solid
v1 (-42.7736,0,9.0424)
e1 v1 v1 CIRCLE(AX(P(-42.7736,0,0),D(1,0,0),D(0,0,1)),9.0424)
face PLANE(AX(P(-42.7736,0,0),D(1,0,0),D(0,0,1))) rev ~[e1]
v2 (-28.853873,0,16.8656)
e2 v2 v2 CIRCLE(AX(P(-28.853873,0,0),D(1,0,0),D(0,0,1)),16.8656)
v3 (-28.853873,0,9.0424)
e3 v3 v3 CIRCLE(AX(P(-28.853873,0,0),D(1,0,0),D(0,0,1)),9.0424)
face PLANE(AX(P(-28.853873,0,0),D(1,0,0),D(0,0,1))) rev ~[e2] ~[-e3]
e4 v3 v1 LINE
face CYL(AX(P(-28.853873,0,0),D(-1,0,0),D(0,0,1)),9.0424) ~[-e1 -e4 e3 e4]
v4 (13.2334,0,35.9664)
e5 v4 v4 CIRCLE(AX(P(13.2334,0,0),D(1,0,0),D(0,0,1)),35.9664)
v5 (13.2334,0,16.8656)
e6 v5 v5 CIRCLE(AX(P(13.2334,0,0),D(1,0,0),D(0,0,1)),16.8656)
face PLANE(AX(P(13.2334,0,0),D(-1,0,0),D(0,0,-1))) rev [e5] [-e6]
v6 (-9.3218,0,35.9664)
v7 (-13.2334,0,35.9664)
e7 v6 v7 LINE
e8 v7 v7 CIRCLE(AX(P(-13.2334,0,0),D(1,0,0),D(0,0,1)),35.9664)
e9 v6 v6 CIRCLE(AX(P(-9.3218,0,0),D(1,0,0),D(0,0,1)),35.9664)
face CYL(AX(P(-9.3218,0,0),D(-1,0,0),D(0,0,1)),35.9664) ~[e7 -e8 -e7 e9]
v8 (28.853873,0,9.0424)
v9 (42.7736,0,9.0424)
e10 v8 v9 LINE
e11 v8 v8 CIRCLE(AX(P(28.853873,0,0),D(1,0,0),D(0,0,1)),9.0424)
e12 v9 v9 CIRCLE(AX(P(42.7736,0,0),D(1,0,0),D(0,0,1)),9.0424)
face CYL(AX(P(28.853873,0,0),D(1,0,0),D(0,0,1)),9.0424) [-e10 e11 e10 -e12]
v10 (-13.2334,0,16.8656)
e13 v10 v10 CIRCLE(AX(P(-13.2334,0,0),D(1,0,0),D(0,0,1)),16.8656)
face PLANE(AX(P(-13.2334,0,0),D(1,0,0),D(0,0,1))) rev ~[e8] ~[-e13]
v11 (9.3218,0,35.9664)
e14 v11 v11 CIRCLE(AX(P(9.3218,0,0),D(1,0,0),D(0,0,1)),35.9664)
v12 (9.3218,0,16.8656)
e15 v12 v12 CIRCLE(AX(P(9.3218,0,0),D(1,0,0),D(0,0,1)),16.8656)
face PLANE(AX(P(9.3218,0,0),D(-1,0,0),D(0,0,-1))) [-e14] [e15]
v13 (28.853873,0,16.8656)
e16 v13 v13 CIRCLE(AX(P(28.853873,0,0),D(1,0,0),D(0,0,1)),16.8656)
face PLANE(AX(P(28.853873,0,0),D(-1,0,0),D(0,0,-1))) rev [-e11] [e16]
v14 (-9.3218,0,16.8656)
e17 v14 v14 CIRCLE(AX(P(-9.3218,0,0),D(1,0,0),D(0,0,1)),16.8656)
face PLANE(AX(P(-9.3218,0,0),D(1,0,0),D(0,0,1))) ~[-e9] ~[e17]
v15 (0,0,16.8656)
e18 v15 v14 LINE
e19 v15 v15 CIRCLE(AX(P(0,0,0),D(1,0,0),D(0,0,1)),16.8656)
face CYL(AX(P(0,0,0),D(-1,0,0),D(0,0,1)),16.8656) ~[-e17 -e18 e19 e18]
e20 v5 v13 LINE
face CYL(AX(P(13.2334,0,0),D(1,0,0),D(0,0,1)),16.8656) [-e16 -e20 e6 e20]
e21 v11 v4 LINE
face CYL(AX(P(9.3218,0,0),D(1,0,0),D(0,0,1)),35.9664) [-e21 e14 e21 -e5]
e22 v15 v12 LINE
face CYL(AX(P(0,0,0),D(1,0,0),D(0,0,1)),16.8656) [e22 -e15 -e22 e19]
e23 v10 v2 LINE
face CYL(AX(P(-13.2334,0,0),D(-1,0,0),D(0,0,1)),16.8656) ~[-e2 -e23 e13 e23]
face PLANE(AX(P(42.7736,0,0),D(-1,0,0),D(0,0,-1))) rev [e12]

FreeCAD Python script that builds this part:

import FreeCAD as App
import Part
import Sketcher

V = App.Vector
Q = App.Units.Quantity

doc = App.newDocument("Part")
body = doc.addObject("PartDesign::Body", "Body")

sketch1 = body.newObject("Sketcher::SketchObject", "Sketch")
sketch1.AttachmentSupport = (doc.getObject("XZ_Plane"), [""])
sketch1.MapMode = "FlatFace"
sketch1.addGeometry(Part.LineSegment(V(-9.3, 36, 0), V(-13.2, 36, 0)), False)
sketch1.addGeometry(Part.LineSegment(V(-13.2, 36, 0), V(-13.2, 16.9, 0)), False)
sketch1.addGeometry(Part.LineSegment(V(-13.2, 16.9, 0), V(-28.9, 16.9, 0)), False)
sketch1.addGeometry(Part.LineSegment(V(-28.9, 16.9, 0), V(-28.9, 9, 0)), False)
sketch1.addGeometry(Part.LineSegment(V(-28.9, 9, 0), V(-42.8, 9, 0)), False)
sketch1.addGeometry(Part.LineSegment(V(-42.8, 9, 0), V(-42.8, 0, 0)), False)
sketch1.addGeometry(Part.LineSegment(V(-42.8, 0, 0), V(0, 0, 0)), False)
sketch1.addGeometry(Part.LineSegment(V(0, 0, 0), V(0, 16.9, 0)), False)
sketch1.addGeometry(Part.LineSegment(V(0, 16.9, 0), V(-9.3, 16.9, 0)), False)
sketch1.addGeometry(Part.LineSegment(V(-9.3, 16.9, 0), V(-9.3, 36, 0)), False)
sketch1.addConstraint(Sketcher.Constraint("Coincident", 0, 2, 1, 1))
sketch1.addConstraint(Sketcher.Constraint("Coincident", 1, 2, 2, 1))
sketch1.addConstraint(Sketcher.Constraint("Coincident", 2, 2, 3, 1))
sketch1.addConstraint(Sketcher.Constraint("Coincident", 3, 2, 4, 1))
sketch1.addConstraint(Sketcher.Constraint("Coincident", 4, 2, 5, 1))
sketch1.addConstraint(Sketcher.Constraint("Coincident", 5, 2, 6, 1))
sketch1.addConstraint(Sketcher.Constraint("Coincident", 6, 2, 7, 1))
sketch1.addConstraint(Sketcher.Constraint("Coincident", 7, 2, 8, 1))
sketch1.addConstraint(Sketcher.Constraint("Coincident", 8, 2, 9, 1))
sketch1.addConstraint(Sketcher.Constraint("Coincident", 9, 2, 0, 1))
sketch1.addConstraint(Sketcher.Constraint("Horizontal", 0))
sketch1.addConstraint(Sketcher.Constraint("Vertical", 1))
sketch1.addConstraint(Sketcher.Constraint("Horizontal", 2))
sketch1.addConstraint(Sketcher.Constraint("Vertical", 3))
sketch1.addConstraint(Sketcher.Constraint("Horizontal", 4))
sketch1.addConstraint(Sketcher.Constraint("Vertical", 5))
sketch1.addConstraint(Sketcher.Constraint("Horizontal", 6))
sketch1.addConstraint(Sketcher.Constraint("Vertical", 7))
sketch1.addConstraint(Sketcher.Constraint("Horizontal", 8))
sketch1.addConstraint(Sketcher.Constraint("Vertical", 9))
sketch1.addConstraint(Sketcher.Constraint("Coincident", 6, 2, -1, 1))
sketch1.addConstraint(Sketcher.Constraint("Horizontal", 2, 2, 7, 2))
sketch1.addConstraint(Sketcher.Constraint("DistanceX", 0, 2, 0, 1, Q("0.154 in")))
sketch1.addConstraint(Sketcher.Constraint("DistanceX", 6, 1, 6, 2, Q("1.684 in")))
sketch1.addConstraint(Sketcher.Constraint("DistanceX", 8, 2, 8, 1, Q("0.367 in")))
sketch1.addConstraint(Sketcher.Constraint("DistanceY", 1, 2, 1, 1, Q("0.752 in")))
sketch1.addConstraint(Sketcher.Constraint("DistanceY", 3, 2, 3, 1, Q("0.308 in")))
sketch1.addConstraint(Sketcher.Constraint("DistanceY", 5, 2, 5, 1, Q("0.356 in")))
sketch1.addConstraint(Sketcher.Constraint("DistanceX", 2, 2, 2, 1, Q("15.620473 mm")))
revolution = body.newObject("PartDesign::Revolution", "Revolution")
revolution.Profile = sketch1
revolution.ReferenceAxis = (sketch1, ["H_Axis"])
revolution.Angle = 360

sketch2 = body.newObject("Sketcher::SketchObject", "Sketch001")
sketch2.AttachmentSupport = (doc.getObject("XZ_Plane"), [""])
sketch2.MapMode = "FlatFace"
sketch2.addGeometry(Part.LineSegment(V(-9.3, 36, 0), V(-13.2, 36, 0)), False)
sketch2.addGeometry(Part.LineSegment(V(-13.2, 36, 0), V(-13.2, 16.9, 0)), False)
sketch2.addGeometry(Part.LineSegment(V(-13.2, 16.9, 0), V(-28.9, 16.9, 0)), False)
sketch2.addGeometry(Part.LineSegment(V(-28.9, 16.9, 0), V(-28.9, 9, 0)), False)
sketch2.addGeometry(Part.LineSegment(V(-28.9, 9, 0), V(-42.8, 9, 0)), False)
sketch2.addGeometry(Part.LineSegment(V(-42.8, 9, 0), V(-42.8, 0, 0)), False)
sketch2.addGeometry(Part.LineSegment(V(-42.8, 0, 0), V(0, 0, 0)), False)
sketch2.addGeometry(Part.LineSegment(V(0, 0, 0), V(0, 16.9, 0)), False)
sketch2.addGeometry(Part.LineSegment(V(0, 16.9, 0), V(-9.3, 16.9, 0)), False)
sketch2.addGeometry(Part.LineSegment(V(-9.3, 16.9, 0), V(-9.3, 36, 0)), False)
sketch2.addConstraint(Sketcher.Constraint("Coincident", 0, 2, 1, 1))
sketch2.addConstraint(Sketcher.Constraint("Coincident", 1, 2, 2, 1))
sketch2.addConstraint(Sketcher.Constraint("Coincident", 2, 2, 3, 1))
sketch2.addConstraint(Sketcher.Constraint("Coincident", 3, 2, 4, 1))
sketch2.addConstraint(Sketcher.Constraint("Coincident", 4, 2, 5, 1))
sketch2.addConstraint(Sketcher.Constraint("Coincident", 5, 2, 6, 1))
sketch2.addConstraint(Sketcher.Constraint("Coincident", 6, 2, 7, 1))
sketch2.addConstraint(Sketcher.Constraint("Coincident", 7, 2, 8, 1))
sketch2.addConstraint(Sketcher.Constraint("Coincident", 8, 2, 9, 1))
sketch2.addConstraint(Sketcher.Constraint("Coincident", 9, 2, 0, 1))
sketch2.addConstraint(Sketcher.Constraint("Horizontal", 0))
sketch2.addConstraint(Sketcher.Constraint("Vertical", 1))
sketch2.addConstraint(Sketcher.Constraint("Horizontal", 2))
sketch2.addConstraint(Sketcher.Constraint("Vertical", 3))
sketch2.addConstraint(Sketcher.Constraint("Horizontal", 4))
sketch2.addConstraint(Sketcher.Constraint("Vertical", 5))
sketch2.addConstraint(Sketcher.Constraint("Horizontal", 6))
sketch2.addConstraint(Sketcher.Constraint("Vertical", 7))
sketch2.addConstraint(Sketcher.Constraint("Horizontal", 8))
sketch2.addConstraint(Sketcher.Constraint("Vertical", 9))
sketch2.addConstraint(Sketcher.Constraint("Coincident", 6, 2, -1, 1))
sketch2.addConstraint(Sketcher.Constraint("Horizontal", 2, 2, 7, 2))
sketch2.addConstraint(Sketcher.Constraint("DistanceX", 0, 2, 0, 1, Q("0.154 in")))
sketch2.addConstraint(Sketcher.Constraint("DistanceX", 6, 1, 6, 2, Q("1.684 in")))
sketch2.addConstraint(Sketcher.Constraint("DistanceX", 8, 2, 8, 1, Q("0.367 in")))
sketch2.addConstraint(Sketcher.Constraint("DistanceY", 1, 2, 1, 1, Q("0.752 in")))
sketch2.addConstraint(Sketcher.Constraint("DistanceY", 3, 2, 3, 1, Q("0.308 in")))
sketch2.addConstraint(Sketcher.Constraint("DistanceY", 5, 2, 5, 1, Q("0.356 in")))
sketch2.addConstraint(Sketcher.Constraint("DistanceX", 2, 2, 2, 1, Q("15.620473 mm")))
revolution2 = body.newObject("PartDesign::Revolution", "Revolution001")
revolution2.Profile = sketch2
revolution2.ReferenceAxis = (sketch2, ["H_Axis"])
revolution2.Angle = 360
body2 = doc.addObject("PartDesign::Body", "Body001")
doc.recompute()

body2.BaseFeature = body
doc.recompute()

mirroring = doc.addObject("Part::Mirroring", "Mirroring")
mirroring.Source = body
mirroring.Base = V(0, 0, 0)
mirroring.Normal = V(1, 0, 0)
body3 = doc.addObject("PartDesign::Body", "Body002")
body3.BaseFeature = mirroring
boolean = body2.newObject("PartDesign::Boolean", "Boolean")
boolean.Type = "Fuse"
boolean.addObjects([body3])
doc.recompute()
mirroring.Visibility = False

doc.recompute()
